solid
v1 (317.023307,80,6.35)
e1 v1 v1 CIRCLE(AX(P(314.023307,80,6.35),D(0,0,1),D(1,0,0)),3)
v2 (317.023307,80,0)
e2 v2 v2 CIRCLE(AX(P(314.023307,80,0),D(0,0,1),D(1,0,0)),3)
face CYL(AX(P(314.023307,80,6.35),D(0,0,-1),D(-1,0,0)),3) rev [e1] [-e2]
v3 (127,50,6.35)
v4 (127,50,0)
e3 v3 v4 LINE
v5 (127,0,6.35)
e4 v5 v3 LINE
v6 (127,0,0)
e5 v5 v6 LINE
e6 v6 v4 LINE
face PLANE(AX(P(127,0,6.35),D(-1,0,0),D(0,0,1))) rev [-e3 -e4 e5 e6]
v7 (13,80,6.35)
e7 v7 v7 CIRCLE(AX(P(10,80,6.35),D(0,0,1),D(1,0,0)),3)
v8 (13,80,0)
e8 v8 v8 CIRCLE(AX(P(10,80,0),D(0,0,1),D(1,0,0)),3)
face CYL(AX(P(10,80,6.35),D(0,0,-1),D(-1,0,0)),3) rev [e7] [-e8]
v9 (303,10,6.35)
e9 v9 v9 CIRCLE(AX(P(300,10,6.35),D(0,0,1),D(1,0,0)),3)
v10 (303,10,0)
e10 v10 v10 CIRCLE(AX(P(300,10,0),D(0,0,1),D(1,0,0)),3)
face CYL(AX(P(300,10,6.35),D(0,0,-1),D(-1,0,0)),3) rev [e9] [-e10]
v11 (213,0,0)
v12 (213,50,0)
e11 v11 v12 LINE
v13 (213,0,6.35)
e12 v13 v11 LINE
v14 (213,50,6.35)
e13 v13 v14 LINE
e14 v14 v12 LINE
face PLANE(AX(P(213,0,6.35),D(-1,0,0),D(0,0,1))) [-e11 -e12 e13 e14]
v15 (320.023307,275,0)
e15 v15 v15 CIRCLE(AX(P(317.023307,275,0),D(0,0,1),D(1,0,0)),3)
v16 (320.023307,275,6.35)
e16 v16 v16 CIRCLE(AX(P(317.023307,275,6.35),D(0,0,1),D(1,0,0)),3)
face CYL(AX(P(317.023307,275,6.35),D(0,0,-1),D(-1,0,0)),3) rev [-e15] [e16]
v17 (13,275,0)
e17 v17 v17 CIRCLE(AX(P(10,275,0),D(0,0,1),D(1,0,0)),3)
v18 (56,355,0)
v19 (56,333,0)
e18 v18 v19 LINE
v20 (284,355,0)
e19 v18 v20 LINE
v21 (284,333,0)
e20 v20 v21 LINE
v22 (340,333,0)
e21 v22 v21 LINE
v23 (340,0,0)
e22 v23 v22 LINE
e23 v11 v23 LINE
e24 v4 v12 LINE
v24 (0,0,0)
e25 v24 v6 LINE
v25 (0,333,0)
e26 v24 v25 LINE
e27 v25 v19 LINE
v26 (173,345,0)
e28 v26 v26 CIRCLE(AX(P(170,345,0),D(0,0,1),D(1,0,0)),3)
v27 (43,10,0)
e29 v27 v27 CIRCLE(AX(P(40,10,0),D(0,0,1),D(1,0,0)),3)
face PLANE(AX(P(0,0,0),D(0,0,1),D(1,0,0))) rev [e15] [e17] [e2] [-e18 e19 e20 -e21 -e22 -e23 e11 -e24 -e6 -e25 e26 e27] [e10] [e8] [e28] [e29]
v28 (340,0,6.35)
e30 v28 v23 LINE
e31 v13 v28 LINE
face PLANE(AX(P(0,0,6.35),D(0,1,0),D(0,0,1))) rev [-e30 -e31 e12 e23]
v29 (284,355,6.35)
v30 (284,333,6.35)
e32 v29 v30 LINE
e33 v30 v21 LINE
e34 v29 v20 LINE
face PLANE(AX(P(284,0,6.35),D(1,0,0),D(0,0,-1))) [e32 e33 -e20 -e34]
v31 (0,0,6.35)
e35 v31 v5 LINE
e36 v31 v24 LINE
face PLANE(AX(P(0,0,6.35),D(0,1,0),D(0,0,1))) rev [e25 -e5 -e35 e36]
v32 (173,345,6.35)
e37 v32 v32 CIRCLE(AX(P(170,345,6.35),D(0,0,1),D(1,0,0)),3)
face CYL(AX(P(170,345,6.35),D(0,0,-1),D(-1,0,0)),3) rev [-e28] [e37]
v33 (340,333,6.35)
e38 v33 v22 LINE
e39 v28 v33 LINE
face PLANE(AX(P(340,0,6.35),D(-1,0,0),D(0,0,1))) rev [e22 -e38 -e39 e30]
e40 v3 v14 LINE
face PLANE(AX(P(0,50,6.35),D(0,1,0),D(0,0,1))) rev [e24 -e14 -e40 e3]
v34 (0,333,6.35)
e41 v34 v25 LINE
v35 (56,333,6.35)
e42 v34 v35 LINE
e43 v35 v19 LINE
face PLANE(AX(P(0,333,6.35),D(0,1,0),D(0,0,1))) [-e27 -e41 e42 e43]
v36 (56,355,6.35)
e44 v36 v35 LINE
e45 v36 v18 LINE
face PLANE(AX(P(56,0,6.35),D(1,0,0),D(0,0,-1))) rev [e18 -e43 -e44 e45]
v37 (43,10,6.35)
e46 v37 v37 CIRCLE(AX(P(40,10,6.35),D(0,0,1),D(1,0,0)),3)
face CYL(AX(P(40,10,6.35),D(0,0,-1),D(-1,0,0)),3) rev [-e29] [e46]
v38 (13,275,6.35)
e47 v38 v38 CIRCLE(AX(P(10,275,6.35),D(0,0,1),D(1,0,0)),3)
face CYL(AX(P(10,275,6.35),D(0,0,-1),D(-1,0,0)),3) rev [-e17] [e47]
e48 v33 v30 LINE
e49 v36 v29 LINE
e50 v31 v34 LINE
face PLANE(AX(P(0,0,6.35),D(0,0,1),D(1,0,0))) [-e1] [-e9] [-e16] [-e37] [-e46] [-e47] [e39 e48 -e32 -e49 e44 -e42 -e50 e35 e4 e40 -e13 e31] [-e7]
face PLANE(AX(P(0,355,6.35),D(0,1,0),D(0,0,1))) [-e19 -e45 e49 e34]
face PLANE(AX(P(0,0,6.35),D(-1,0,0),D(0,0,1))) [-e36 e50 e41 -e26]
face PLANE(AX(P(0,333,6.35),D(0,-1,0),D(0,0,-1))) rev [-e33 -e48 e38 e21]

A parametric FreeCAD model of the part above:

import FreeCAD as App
import Part
import Sketcher
from FreeCAD import Vector


def add_polygon(sketch, points):
    """Adds a closed chain of lines whose ends are joined by coincident constraints."""
    first, n = sketch.GeometryCount, len(points)
    for a, b in zip(points, points[1:] + points[:1]):
        sketch.addGeometry(Part.LineSegment(App.Vector(*a, 0), App.Vector(*b, 0)), False)
    for i in range(n):
        sketch.addConstraint(Sketcher.Constraint("Coincident", first + i, 2, first + (i + 1) % n, 1))

doc = App.newDocument("Part")
params = doc.addObject("Spreadsheet::Sheet", "Params")
for row, (alias, value) in enumerate([
    ("sketch1_diameter", "6 mm"),
    ("sketch1_width", "127 mm"),
    ("sketch1_width2", "86 mm"),
    ("sketch1_width3", "56 mm"),
    ("sketch1_height", "333 mm"),
    ("pad1_length", "6.35 mm"),
], start=1):
    params.set(f"A{row}", alias)
    params.set(f"B{row}", "=" + value)
    params.setAlias(f"B{row}", alias)

body = doc.addObject("PartDesign::Body", "Body")

# Sketch on XY plane
sketch1 = body.newObject("Sketcher::SketchObject", "Sketch")
sketch1.AttachmentSupport = (doc.getObject("XY_Plane"), [""])
sketch1.MapMode = "FlatFace"
add_polygon(sketch1, [(0, 333), (0, 0), (127, 0), (127, 50), (213, 50), (213, 0), (340, 0), (340, 333), (284, 333), (284, 355), (56, 355), (56, 333)])  # lines 0-11
sketch1.addGeometry(Part.Circle(Vector(40, 10, 0), Vector(0, 0, 1), 3), False)  # 12
sketch1.addGeometry(Part.Circle(Vector(10, 80, 0), Vector(0, 0, 1), 3), False)  # 13
sketch1.addGeometry(Part.Circle(Vector(300, 10, 0), Vector(0, 0, 1), 3), False)  # 14
sketch1.addGeometry(Part.Circle(Vector(314, 80, 0), Vector(0, 0, 1), 3), False)  # 15
sketch1.addGeometry(Part.Circle(Vector(10, 275, 0), Vector(0, 0, 1), 3), False)  # 16
sketch1.addGeometry(Part.Circle(Vector(170, 345, 0), Vector(0, 0, 1), 3), False)  # 17
sketch1.addGeometry(Part.Circle(Vector(317, 275, 0), Vector(0, 0, 1), 3), False)  # 18
sketch1.addConstraint([
    Sketcher.Constraint("Vertical", 0),
    Sketcher.Constraint("Horizontal", 1),
    Sketcher.Constraint("Vertical", 2),
    Sketcher.Constraint("Horizontal", 3),
    Sketcher.Constraint("Vertical", 4),
    Sketcher.Constraint("Horizontal", 5),
    Sketcher.Constraint("Vertical", 6),
    Sketcher.Constraint("Horizontal", 7),
    Sketcher.Constraint("Vertical", 8),
    Sketcher.Constraint("Horizontal", 9),
    Sketcher.Constraint("Vertical", 10),
    Sketcher.Constraint("Horizontal", 11),
    Sketcher.Constraint("Coincident", 0, 2, -1, 1),
    Sketcher.Constraint("Equal", 12, 13),
    Sketcher.Constraint("Equal", 13, 14),
    Sketcher.Constraint("Equal", 14, 15),
    Sketcher.Constraint("Equal", 15, 16),
    Sketcher.Constraint("Equal", 16, 17),
    Sketcher.Constraint("Equal", 17, 18),
    Sketcher.Constraint("PointOnObject", 4, 2, -1),
    Sketcher.Constraint("Horizontal", 12, 3, 14, 3),
    Sketcher.Constraint("Horizontal", 13, 3, 15, 3),
    Sketcher.Constraint("Horizontal", 16, 3, 18, 3),
    Sketcher.Constraint("Horizontal", 7, 2, 10, 2),
    Sketcher.Constraint("Vertical", 13, 3, 16, 3),
    Sketcher.Constraint("Equal", 1, 5),
    Sketcher.Constraint("Equal", 7, 11),
    Sketcher.Constraint("Diameter", 12, 6.0),
    Sketcher.Constraint("DistanceX", 1, 1, 1, 2, 127.0),
    Sketcher.Constraint("DistanceX", 3, 1, 3, 2, 86.0),
    Sketcher.Constraint("DistanceX", 7, 2, 7, 1, 56.0),
    Sketcher.Constraint("DistanceY", 0, 2, 0, 1, 333.0),
    Sketcher.Constraint("DistanceY", 2, 1, 2, 2, 50.0),
    Sketcher.Constraint("DistanceY", 8, 1, 8, 2, 22.0),
    Sketcher.Constraint("DistanceX", -1, 1, 12, 3, 40.0),
    Sketcher.Constraint("DistanceY", -1, 1, 12, 3, 10.0),
    Sketcher.Constraint("DistanceX", -1, 1, 13, 3, 10.0),
    Sketcher.Constraint("DistanceY", -1, 1, 13, 3, 80.0),
    Sketcher.Constraint("DistanceX", -1, 1, 14, 3, 300.0),
    Sketcher.Constraint("DistanceY", -1, 1, 16, 3, 275.0),
    Sketcher.Constraint("DistanceX", -1, 1, 17, 3, 170.0),
    Sketcher.Constraint("DistanceY", -1, 1, 17, 3, 345.0),
    Sketcher.Constraint("DistanceX", 15, 3, 18, 3, 3.0),
    Sketcher.Constraint("DistanceX", -1, 1, 15, 3, 314.023307),
])
sketch1.setExpression("Constraints[39]", "Params.sketch1_diameter")
sketch1.setExpression("Constraints[40]", "Params.sketch1_width")
sketch1.setExpression("Constraints[41]", "Params.sketch1_width2")
sketch1.setExpression("Constraints[42]", "Params.sketch1_width3")
sketch1.setExpression("Constraints[43]", "Params.sketch1_height")
pad1 = body.newObject("PartDesign::Pad", "Pad")
pad1.Profile = sketch1
pad1.setExpression("Length", "Params.pad1_length")

doc.recompute()
